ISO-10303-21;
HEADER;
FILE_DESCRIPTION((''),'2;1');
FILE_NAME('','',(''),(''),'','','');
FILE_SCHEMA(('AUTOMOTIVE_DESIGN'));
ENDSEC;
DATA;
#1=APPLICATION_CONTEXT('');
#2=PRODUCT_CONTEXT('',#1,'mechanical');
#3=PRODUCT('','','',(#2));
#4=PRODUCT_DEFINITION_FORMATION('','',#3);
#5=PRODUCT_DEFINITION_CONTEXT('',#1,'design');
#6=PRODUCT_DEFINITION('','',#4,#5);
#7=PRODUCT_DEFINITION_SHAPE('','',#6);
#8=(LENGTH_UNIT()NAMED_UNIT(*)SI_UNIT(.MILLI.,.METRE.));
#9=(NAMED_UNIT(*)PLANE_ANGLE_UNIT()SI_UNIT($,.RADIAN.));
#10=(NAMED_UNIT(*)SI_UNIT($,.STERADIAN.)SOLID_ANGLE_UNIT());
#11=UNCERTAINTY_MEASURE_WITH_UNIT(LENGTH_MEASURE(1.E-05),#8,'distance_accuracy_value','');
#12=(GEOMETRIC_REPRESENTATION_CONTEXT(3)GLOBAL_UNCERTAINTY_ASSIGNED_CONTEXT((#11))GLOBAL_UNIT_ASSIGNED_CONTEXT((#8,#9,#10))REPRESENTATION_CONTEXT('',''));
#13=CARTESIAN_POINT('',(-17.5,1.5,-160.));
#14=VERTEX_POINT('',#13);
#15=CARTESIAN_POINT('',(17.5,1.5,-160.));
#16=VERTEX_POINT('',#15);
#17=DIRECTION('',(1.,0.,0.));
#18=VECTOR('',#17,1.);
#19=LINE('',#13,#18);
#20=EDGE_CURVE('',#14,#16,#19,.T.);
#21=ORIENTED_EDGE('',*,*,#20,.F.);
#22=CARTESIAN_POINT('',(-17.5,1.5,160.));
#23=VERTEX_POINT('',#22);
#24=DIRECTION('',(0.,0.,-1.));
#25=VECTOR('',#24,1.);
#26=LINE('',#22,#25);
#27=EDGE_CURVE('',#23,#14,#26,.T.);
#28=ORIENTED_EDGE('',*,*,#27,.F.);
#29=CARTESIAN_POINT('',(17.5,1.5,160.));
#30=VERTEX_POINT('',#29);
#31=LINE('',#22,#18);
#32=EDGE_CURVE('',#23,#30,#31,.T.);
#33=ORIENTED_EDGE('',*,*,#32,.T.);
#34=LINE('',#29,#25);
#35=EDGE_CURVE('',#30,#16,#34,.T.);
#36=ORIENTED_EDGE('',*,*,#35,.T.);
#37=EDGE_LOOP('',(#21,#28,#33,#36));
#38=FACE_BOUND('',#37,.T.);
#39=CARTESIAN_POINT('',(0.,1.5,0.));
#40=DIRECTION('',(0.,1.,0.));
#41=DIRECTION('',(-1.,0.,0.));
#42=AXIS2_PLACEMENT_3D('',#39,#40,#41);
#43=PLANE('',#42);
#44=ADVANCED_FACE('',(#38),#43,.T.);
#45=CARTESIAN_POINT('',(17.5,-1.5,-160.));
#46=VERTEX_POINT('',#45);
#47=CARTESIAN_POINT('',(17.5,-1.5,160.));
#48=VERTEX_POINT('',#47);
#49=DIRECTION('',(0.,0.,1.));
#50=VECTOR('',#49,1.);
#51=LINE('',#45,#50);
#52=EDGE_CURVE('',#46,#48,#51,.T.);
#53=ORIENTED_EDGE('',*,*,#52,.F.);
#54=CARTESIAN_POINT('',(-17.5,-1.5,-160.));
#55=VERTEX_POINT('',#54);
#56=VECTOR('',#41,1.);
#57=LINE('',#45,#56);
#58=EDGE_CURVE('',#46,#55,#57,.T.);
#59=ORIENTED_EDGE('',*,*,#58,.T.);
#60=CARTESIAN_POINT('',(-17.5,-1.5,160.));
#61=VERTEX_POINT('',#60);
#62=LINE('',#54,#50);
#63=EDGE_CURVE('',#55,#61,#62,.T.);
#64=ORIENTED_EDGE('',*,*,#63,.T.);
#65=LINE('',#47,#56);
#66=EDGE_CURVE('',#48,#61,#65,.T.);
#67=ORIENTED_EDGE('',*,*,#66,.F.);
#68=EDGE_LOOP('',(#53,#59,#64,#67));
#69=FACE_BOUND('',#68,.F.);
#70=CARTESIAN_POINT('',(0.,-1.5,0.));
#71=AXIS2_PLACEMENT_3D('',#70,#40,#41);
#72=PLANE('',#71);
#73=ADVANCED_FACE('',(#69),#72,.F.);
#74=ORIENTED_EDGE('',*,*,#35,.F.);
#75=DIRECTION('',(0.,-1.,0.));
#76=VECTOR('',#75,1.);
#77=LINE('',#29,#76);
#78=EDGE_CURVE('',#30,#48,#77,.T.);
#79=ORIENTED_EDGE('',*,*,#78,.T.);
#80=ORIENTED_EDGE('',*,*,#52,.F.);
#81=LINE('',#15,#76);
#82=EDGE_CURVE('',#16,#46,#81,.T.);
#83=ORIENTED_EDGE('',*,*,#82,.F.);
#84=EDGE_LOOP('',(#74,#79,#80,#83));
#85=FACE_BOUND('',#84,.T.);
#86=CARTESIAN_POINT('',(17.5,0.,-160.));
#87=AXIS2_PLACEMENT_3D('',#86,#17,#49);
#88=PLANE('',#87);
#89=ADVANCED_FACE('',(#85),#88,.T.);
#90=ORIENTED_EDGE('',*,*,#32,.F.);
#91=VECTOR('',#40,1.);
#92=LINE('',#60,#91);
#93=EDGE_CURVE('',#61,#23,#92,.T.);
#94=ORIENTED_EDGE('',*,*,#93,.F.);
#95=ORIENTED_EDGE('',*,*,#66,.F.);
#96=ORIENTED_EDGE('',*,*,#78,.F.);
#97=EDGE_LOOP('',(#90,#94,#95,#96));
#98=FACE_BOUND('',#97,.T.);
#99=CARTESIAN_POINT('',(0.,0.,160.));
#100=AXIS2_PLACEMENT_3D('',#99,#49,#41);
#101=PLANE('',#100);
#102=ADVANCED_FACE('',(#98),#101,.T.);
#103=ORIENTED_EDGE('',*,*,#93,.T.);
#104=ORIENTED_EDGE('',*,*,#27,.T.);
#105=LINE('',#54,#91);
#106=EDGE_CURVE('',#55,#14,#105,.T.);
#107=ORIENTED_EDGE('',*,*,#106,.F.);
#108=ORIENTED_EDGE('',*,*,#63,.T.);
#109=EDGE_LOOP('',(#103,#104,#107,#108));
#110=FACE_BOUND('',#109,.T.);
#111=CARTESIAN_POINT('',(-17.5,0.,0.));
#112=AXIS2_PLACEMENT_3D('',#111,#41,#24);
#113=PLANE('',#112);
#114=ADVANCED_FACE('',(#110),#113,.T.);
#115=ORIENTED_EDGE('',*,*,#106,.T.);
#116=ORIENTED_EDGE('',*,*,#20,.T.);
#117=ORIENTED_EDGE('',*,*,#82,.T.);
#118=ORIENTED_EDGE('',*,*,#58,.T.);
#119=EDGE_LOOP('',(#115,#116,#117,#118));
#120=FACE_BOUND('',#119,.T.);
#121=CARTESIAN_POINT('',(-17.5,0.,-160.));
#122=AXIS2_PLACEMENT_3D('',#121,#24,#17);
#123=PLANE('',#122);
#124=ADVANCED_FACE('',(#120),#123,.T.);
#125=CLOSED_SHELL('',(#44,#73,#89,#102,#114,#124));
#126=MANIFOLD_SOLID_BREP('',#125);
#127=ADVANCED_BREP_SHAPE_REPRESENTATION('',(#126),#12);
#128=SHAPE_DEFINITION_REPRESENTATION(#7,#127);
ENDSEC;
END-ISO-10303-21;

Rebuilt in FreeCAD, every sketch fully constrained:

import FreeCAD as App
import Part
import Sketcher
Q = App.Units.Quantity


def add_polygon(sketch, points):
    """Adds a closed chain of lines whose ends are joined by coincident constraints."""
    first, n = sketch.GeometryCount, len(points)
    for a, b in zip(points, points[1:] + points[:1]):
        sketch.addGeometry(Part.LineSegment(App.Vector(*a, 0), App.Vector(*b, 0)), False)
    for i in range(n):
        sketch.addConstraint(Sketcher.Constraint("Coincident", first + i, 2, first + (i + 1) % n, 1))

doc = App.newDocument("Part")
body = doc.addObject("PartDesign::Body", "Body")

sketch1 = body.newObject("Sketcher::SketchObject", "Sketch")
sketch1.AttachmentSupport = (doc.getObject("XZ_Plane"), [""])
sketch1.MapMode = "FlatFace"
add_polygon(sketch1, [(-18, -160), (-18, 160), (18, 160), (18, -160)])
sketch1.addConstraint(Sketcher.Constraint("Vertical", 0))
sketch1.addConstraint(Sketcher.Constraint("Horizontal", 1))
sketch1.addConstraint(Sketcher.Constraint("Vertical", 2))
sketch1.addConstraint(Sketcher.Constraint("Horizontal", 3))
sketch1.addConstraint(Sketcher.Constraint("Symmetric", 0, 2, 2, 2, -1, 1))
sketch1.addConstraint(Sketcher.Constraint("DistanceX", 1, 1, 1, 2, Q("35 mm")))
sketch1.addConstraint(Sketcher.Constraint("DistanceY", 0, 1, 0, 2, Q("320 mm")))
pad1 = body.newObject("PartDesign::Pad", "Pad")
pad1.Profile = sketch1
pad1.Length = 3
pad1.Midplane = True

doc.recompute()
